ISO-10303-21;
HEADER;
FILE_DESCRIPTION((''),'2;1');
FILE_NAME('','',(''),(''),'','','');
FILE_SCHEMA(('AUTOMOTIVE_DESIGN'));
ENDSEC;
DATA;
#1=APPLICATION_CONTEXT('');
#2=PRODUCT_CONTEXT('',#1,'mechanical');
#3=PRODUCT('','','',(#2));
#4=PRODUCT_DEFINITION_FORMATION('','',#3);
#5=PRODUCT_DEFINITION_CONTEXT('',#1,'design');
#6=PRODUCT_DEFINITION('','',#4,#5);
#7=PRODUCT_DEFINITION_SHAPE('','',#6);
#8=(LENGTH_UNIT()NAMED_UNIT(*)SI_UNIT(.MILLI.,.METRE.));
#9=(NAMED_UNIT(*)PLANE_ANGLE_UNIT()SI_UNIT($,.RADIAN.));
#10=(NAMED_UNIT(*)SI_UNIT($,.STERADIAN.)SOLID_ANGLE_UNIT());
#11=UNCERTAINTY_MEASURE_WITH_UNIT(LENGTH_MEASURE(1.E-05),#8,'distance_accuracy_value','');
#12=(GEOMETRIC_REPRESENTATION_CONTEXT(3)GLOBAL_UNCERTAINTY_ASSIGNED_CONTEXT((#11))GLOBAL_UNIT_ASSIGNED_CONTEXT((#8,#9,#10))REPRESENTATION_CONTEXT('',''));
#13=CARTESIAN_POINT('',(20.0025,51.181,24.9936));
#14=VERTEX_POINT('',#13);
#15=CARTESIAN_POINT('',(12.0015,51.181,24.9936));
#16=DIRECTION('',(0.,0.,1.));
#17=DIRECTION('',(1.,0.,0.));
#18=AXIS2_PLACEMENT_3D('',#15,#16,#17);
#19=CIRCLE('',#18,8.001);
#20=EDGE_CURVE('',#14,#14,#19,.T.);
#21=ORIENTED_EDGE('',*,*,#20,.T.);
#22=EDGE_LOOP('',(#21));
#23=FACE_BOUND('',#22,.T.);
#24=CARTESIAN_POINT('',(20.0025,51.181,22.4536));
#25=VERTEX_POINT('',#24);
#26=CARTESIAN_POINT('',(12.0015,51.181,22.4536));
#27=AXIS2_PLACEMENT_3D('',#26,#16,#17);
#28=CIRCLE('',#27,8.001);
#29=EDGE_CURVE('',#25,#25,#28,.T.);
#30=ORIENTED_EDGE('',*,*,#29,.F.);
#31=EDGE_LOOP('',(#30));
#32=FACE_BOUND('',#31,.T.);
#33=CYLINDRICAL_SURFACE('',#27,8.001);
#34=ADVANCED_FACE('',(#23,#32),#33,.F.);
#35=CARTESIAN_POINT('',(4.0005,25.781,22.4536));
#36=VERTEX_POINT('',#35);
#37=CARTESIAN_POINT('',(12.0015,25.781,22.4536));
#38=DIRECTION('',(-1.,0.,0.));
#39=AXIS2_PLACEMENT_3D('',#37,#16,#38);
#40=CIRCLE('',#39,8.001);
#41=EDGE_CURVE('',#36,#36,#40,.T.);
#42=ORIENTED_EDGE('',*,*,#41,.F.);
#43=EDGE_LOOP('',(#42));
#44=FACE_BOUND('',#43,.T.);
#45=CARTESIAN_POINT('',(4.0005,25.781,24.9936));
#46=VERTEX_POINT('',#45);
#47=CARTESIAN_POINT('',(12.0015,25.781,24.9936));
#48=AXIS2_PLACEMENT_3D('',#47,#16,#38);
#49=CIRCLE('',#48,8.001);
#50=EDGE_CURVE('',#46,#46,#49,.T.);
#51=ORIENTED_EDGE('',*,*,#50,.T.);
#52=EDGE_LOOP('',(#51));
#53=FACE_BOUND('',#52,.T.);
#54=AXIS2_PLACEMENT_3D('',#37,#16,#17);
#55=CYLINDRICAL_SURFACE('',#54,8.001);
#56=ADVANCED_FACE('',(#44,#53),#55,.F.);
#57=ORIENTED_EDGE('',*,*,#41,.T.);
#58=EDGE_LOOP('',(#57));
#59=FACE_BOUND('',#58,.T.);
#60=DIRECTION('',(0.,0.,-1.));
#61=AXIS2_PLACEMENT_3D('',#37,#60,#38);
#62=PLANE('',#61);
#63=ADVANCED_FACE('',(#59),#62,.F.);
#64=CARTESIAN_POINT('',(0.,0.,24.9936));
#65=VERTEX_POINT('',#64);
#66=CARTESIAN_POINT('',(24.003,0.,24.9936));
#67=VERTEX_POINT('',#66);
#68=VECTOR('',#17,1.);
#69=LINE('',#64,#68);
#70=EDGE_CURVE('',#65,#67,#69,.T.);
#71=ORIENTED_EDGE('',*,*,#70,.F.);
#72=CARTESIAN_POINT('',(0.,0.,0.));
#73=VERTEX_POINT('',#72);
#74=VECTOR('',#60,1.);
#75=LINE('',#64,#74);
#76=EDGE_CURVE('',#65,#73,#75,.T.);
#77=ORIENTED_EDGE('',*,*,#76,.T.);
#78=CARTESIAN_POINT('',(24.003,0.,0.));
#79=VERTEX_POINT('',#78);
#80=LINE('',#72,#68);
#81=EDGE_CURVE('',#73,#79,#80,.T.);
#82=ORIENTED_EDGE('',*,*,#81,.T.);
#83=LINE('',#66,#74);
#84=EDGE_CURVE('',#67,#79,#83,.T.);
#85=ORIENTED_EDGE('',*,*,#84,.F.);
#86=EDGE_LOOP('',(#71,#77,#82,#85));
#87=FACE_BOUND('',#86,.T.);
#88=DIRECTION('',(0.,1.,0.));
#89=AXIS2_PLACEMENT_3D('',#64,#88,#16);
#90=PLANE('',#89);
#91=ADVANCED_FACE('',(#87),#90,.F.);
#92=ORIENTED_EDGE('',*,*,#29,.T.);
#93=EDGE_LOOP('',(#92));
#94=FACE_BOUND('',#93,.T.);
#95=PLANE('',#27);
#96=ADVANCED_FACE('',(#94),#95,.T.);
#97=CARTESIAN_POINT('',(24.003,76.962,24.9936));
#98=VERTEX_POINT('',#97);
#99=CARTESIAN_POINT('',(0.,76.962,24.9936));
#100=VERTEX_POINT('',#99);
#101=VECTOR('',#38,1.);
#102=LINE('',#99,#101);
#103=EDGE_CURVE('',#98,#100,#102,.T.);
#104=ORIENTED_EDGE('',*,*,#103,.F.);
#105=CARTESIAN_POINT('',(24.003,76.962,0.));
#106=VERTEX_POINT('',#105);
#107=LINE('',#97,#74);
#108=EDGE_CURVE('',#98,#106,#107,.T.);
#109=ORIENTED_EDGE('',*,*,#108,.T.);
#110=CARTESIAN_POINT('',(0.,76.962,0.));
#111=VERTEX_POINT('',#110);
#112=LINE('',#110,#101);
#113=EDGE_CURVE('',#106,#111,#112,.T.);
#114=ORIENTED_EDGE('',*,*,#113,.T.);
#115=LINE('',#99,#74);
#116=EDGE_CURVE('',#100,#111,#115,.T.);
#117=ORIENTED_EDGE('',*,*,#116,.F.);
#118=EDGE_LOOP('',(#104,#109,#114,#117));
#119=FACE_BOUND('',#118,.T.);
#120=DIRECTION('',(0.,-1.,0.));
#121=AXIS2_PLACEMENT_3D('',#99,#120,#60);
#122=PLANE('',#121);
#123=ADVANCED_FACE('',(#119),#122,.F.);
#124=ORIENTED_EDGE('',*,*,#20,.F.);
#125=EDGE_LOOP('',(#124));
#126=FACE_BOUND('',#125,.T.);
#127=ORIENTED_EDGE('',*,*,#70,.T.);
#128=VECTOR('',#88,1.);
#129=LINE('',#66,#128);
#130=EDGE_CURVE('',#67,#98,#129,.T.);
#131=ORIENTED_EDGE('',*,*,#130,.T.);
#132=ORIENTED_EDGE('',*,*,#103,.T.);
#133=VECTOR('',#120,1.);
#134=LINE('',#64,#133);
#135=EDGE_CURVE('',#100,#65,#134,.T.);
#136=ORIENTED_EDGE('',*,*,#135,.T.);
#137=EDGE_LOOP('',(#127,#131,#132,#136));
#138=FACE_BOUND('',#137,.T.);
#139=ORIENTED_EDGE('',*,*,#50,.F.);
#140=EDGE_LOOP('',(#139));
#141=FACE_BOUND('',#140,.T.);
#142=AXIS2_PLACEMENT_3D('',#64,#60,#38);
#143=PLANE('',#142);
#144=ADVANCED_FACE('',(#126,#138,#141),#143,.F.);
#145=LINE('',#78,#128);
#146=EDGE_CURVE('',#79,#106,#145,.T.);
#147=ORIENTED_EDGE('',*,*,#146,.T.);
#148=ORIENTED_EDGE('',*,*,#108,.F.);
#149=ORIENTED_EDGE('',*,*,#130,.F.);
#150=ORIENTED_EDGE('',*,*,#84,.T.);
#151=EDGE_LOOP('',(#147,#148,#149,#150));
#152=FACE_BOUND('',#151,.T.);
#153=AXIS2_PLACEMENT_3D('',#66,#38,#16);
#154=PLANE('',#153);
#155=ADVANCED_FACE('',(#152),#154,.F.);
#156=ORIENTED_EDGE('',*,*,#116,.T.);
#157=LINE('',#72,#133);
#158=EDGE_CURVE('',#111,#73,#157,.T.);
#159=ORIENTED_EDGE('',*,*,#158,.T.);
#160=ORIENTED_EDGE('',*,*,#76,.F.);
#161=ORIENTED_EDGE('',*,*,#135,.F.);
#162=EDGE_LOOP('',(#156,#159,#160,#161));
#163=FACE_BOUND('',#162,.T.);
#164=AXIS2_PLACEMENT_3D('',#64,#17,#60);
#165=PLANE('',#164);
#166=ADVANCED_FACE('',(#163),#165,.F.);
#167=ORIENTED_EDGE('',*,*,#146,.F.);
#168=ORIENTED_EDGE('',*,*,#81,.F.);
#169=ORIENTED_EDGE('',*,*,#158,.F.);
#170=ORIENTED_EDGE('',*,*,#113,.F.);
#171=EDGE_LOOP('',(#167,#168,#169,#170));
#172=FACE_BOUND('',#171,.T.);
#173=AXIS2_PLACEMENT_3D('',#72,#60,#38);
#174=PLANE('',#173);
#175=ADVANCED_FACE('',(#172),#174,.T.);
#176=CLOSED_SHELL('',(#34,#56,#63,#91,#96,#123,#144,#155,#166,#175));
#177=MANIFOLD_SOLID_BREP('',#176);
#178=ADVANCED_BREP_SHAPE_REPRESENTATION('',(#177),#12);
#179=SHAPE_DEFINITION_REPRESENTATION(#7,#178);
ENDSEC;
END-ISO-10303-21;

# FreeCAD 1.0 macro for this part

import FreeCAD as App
import Part
import Sketcher
from FreeCAD import Vector
Q = App.Units.Quantity


def add_polygon(sketch, points):
    """Adds a closed chain of lines whose ends are joined by coincident constraints."""
    first, n = sketch.GeometryCount, len(points)
    for a, b in zip(points, points[1:] + points[:1]):
        sketch.addGeometry(Part.LineSegment(App.Vector(*a, 0), App.Vector(*b, 0)), False)
    for i in range(n):
        sketch.addConstraint(Sketcher.Constraint("Coincident", first + i, 2, first + (i + 1) % n, 1))

doc = App.newDocument("Part")
params = doc.addObject("Spreadsheet::Sheet", "Params")
for row, (alias, value) in enumerate([
    ("sketch1_height", "3.03 in"),
    ("sketch1_width", "0.945 in"),
    ("pad1_length", "0.984 in"),
    ("sketch2_diameter", "0.63 in"),
    ("pocket1_length", "0.1 in"),
], start=1):
    params.set(f"A{row}", alias)
    params.set(f"B{row}", "=" + value)
    params.setAlias(f"B{row}", alias)

body = doc.addObject("PartDesign::Body", "Body")

# Sketch on XY plane
sketch1 = doc.addObject("Sketcher::SketchObject", "Sketch")
body.addObject(sketch1)
sketch1.AttachmentSupport = (doc.XY_Plane, [""])
sketch1.MapMode = "FlatFace"
add_polygon(sketch1, [(0, 77), (0, 0), (24, 0), (24, 77)])  # lines 0-3
sketch1.addConstraint([
    Sketcher.Constraint("Vertical", 0),
    Sketcher.Constraint("Horizontal", 1),
    Sketcher.Constraint("Vertical", 2),
    Sketcher.Constraint("Horizontal", 3),
    Sketcher.Constraint("Coincident", 0, 2, -1, 1),
    Sketcher.Constraint("DistanceY", 0, 2, 0, 1, Q("3.03 in")),
    Sketcher.Constraint("DistanceX", 1, 1, 1, 2, Q("0.945 in")),
])
sketch1.setExpression("Constraints[9]", "Params.sketch1_height")
sketch1.setExpression("Constraints[10]", "Params.sketch1_width")
pad1 = doc.addObject("PartDesign::Pad", "Pad")
body.addObject(pad1)
pad1.Profile = sketch1
pad1.setExpression("Length", "Params.pad1_length")

# Sketch on XY plane
sketch2 = doc.addObject("Sketcher::SketchObject", "Sketch001")
body.addObject(sketch2)
sketch2.AttachmentSupport = (doc.XY_Plane, [""])
sketch2.MapMode = "FlatFace"
sketch2.AttachmentOffset = App.Placement(Vector(0, 0, 0.984 * 25.4), App.Rotation())
sketch2.addGeometry([
    Part.Circle(Vector(12, 51, 0), Vector(0, 0, 1), 8),
    Part.Circle(Vector(12, 26, 0), Vector(0, 0, 1), 8),
], False)
sketch2.addConstraint([
    Sketcher.Constraint("Equal", 0, 1),
    Sketcher.Constraint("Vertical", 0, 3, 1, 3),
    Sketcher.Constraint("Diameter", 0, Q("0.63 in")),
    Sketcher.Constraint("DistanceY", 1, 3, 0, 3, Q("1 in")),
    Sketcher.Constraint("DistanceY", -1, 1, 0, 3, Q("2.015 in")),
    Sketcher.Constraint("DistanceX", -1, 1, 0, 3, Q("0.4725 in")),
])
sketch2.setExpression("Constraints[2]", "Params.sketch2_diameter")
pocket1 = doc.addObject("PartDesign::Pocket", "Pocket")
body.addObject(pocket1)
pocket1.Profile = sketch2
pocket1.setExpression("Length", "Params.pocket1_length")

doc.recompute()
